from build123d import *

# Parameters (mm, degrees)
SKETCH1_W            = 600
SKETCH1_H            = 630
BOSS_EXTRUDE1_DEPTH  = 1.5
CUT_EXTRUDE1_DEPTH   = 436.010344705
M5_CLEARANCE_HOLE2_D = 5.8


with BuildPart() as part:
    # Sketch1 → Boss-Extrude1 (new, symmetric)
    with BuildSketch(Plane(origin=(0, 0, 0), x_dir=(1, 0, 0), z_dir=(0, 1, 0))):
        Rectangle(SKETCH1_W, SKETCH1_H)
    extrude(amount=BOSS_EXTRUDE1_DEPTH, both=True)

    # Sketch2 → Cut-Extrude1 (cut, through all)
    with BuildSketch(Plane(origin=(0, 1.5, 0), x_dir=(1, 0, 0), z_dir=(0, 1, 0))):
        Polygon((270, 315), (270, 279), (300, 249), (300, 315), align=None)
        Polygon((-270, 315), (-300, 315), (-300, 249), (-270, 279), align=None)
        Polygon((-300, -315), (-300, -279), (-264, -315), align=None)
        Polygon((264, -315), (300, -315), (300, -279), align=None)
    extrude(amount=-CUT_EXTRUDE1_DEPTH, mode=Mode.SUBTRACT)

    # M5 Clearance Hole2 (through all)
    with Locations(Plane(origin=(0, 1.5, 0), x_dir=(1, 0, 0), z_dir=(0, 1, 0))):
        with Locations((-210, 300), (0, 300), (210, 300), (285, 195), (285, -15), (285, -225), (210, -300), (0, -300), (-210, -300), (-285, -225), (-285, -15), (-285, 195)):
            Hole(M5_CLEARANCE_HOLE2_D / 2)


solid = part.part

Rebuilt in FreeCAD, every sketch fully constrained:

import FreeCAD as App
import Part
import Sketcher

V = App.Vector
Q = App.Units.Quantity


def add_polygon(sketch, points):
    """Adds a closed chain of lines whose ends are joined by coincident constraints."""
    first, n = sketch.GeometryCount, len(points)
    for a, b in zip(points, points[1:] + points[:1]):
        sketch.addGeometry(Part.LineSegment(App.Vector(*a, 0), App.Vector(*b, 0)), False)
    for i in range(n):
        sketch.addConstraint(Sketcher.Constraint("Coincident", first + i, 2, first + (i + 1) % n, 1))

doc = App.newDocument("Part")
body = doc.addObject("PartDesign::Body", "Body")

# Sketch on XZ plane
sketch1 = body.newObject("Sketcher::SketchObject", "Sketch")
sketch1.AttachmentSupport = (doc.getObject("XZ_Plane"), [""])
sketch1.MapMode = "FlatFace"
add_polygon(sketch1, [(-300, -315), (-300, 315), (300, 315), (300, -315)])  # lines 0-3
sketch1.addConstraint([
    Sketcher.Constraint("Vertical", 0),
    Sketcher.Constraint("Horizontal", 1),
    Sketcher.Constraint("Vertical", 2),
    Sketcher.Constraint("Horizontal", 3),
    Sketcher.Constraint("Symmetric", 0, 2, 2, 2, -1, 1),
    Sketcher.Constraint("DistanceX", 1, 1, 1, 2, Q("600 mm")),
    Sketcher.Constraint("DistanceY", 0, 1, 0, 2, Q("630 mm")),
])
pad1 = body.newObject("PartDesign::Pad", "Pad")
pad1.Profile = sketch1
pad1.Length = 3
pad1.Midplane = True

# Sketch on XZ plane
sketch2 = body.newObject("Sketcher::SketchObject", "Sketch001")
sketch2.AttachmentSupport = (doc.getObject("XZ_Plane"), [""])
sketch2.MapMode = "FlatFace"
sketch2.AttachmentOffset = App.Placement(V(0, 0, -1.5), App.Rotation())
add_polygon(sketch2, [(270, -315), (270, -279), (300, -249), (300, -315)])  # lines 0-3
add_polygon(sketch2, [(-270, -315), (-300, -315), (-300, -249), (-270, -279)])  # lines 4-7
add_polygon(sketch2, [(-300, 279), (-300, 315), (-264, 315)])  # lines 8-10
add_polygon(sketch2, [(264, 315), (300, 315), (300, 279)])  # lines 11-13
sketch2.addConstraint([
    Sketcher.Constraint("Vertical", 0),
    Sketcher.Constraint("Vertical", 2),
    Sketcher.Constraint("Horizontal", 3),
    Sketcher.Constraint("Horizontal", 4),
    Sketcher.Constraint("Vertical", 5),
    Sketcher.Constraint("Vertical", 7),
    Sketcher.Constraint("Vertical", 8),
    Sketcher.Constraint("Horizontal", 9),
    Sketcher.Constraint("Horizontal", 11),
    Sketcher.Constraint("Vertical", 12),
    Sketcher.Constraint("Symmetric", 2, 2, 8, 2, -1, 1),
    Sketcher.Constraint("Symmetric", 4, 2, 11, 2, -1, 1),
    Sketcher.Constraint("Symmetric", 2, 2, 4, 2, -2),
    Sketcher.Constraint("Symmetric", 0, 2, 6, 2, -2),
    Sketcher.Constraint("Perpendicular", 1, 6),
    Sketcher.Constraint("Perpendicular", 6, 10),
    Sketcher.Constraint("Perpendicular", 10, 13),
    Sketcher.Constraint("Horizontal", 1, 2, 5, 2),
    Sketcher.Constraint("Horizontal", 10, 2, 12, 2),
    Sketcher.Constraint("Equal", 11, 0),
    Sketcher.Constraint("DistanceX", 3, 2, 3, 1, Q("30 mm")),
    Sketcher.Constraint("DistanceX", 9, 1, 9, 2, Q("36 mm")),
    Sketcher.Constraint("DistanceX", -1, 1, 0, 2, Q("270 mm")),
    Sketcher.Constraint("DistanceY", 0, 2, -1, 1, Q("279 mm")),
])
pocket1 = body.newObject("PartDesign::Pocket", "Pocket")
pocket1.Profile = sketch2
pocket1.Type = "ThroughAll"
pocket1.Reversed = True

# Sketch on XZ plane
sketch3 = body.newObject("Sketcher::SketchObject", "Sketch002")
sketch3.AttachmentSupport = (doc.getObject("XZ_Plane"), [""])
sketch3.MapMode = "FlatFace"
sketch3.AttachmentOffset = App.Placement(V(0, 0, -1.5), App.Rotation())
sketch3.addGeometry([
    Part.Circle(V(-210, -300, 0), V(0, 0, 1), 2.9),  # 0
    Part.Circle(V(0, -300, 0), V(0, 0, 1), 2.9),  # 1
    Part.Circle(V(210, -300, 0), V(0, 0, 1), 2.9),  # 2
    Part.Circle(V(285, -195, 0), V(0, 0, 1), 2.9),  # 3
    Part.Circle(V(285, 15, 0), V(0, 0, 1), 2.9),  # 4
    Part.Circle(V(285, 225, 0), V(0, 0, 1), 2.9),  # 5
    Part.Circle(V(210, 300, 0), V(0, 0, 1), 2.9),  # 6
    Part.Circle(V(0, 300, 0), V(0, 0, 1), 2.9),  # 7
    Part.Circle(V(-210, 300, 0), V(0, 0, 1), 2.9),  # 8
    Part.Circle(V(-285, 225, 0), V(0, 0, 1), 2.9),  # 9
    Part.Circle(V(-285, 15, 0), V(0, 0, 1), 2.9),  # 10
    Part.Circle(V(-285, -195, 0), V(0, 0, 1), 2.9),  # 11
], False)
sketch3.addConstraint([
    Sketcher.Constraint("Equal", 0, 1),
    Sketcher.Constraint("Equal", 1, 2),
    Sketcher.Constraint("Equal", 2, 3),
    Sketcher.Constraint("Equal", 3, 4),
    Sketcher.Constraint("Equal", 4, 5),
    Sketcher.Constraint("Equal", 5, 6),
    Sketcher.Constraint("Equal", 6, 7),
    Sketcher.Constraint("Equal", 7, 8),
    Sketcher.Constraint("Equal", 8, 9),
    Sketcher.Constraint("Equal", 9, 10),
    Sketcher.Constraint("Equal", 10, 11),
    Sketcher.Constraint("Symmetric", 0, 3, 6, 3, -1, 1),
    Sketcher.Constraint("Symmetric", 1, 3, 7, 3, -1, 1),
    Sketcher.Constraint("Symmetric", 2, 3, 8, 3, -1, 1),
    Sketcher.Constraint("Symmetric", 0, 3, 2, 3, -2),
    Sketcher.Constraint("Symmetric", 5, 3, 9, 3, -2),
    Sketcher.Constraint("Symmetric", 4, 3, 10, 3, -2),
    Sketcher.Constraint("Symmetric", 3, 3, 11, 3, -2),
    Sketcher.Constraint("PointOnObject", 1, 3, -2),
    Sketcher.Constraint("Horizontal", 0, 3, 1, 3),
    Sketcher.Constraint("Vertical", 3, 3, 4, 3),
    Sketcher.Constraint("Vertical", 4, 3, 5, 3),
    Sketcher.Constraint("Diameter", 0, Q("5.8 mm")),
    Sketcher.Constraint("DistanceX", 0, 3, -1, 1, Q("210 mm")),
    Sketcher.Constraint("DistanceY", 0, 3, -1, 1, Q("300 mm")),
    Sketcher.Constraint("DistanceX", -1, 1, 3, 3, Q("285 mm")),
    Sketcher.Constraint("DistanceY", 3, 3, -1, 1, Q("195 mm")),
    Sketcher.Constraint("DistanceY", -1, 1, 4, 3, Q("15 mm")),
    Sketcher.Constraint("DistanceY", -1, 1, 5, 3, Q("225 mm")),
])
doc.recompute()
hole = body.newObject("PartDesign::Hole", "Hole")
hole.Profile = sketch3
hole.ThreadType = "None"
hole.Diameter = 5.8
hole.DepthType = "ThroughAll"
hole.Reversed = True

doc.recompute()
